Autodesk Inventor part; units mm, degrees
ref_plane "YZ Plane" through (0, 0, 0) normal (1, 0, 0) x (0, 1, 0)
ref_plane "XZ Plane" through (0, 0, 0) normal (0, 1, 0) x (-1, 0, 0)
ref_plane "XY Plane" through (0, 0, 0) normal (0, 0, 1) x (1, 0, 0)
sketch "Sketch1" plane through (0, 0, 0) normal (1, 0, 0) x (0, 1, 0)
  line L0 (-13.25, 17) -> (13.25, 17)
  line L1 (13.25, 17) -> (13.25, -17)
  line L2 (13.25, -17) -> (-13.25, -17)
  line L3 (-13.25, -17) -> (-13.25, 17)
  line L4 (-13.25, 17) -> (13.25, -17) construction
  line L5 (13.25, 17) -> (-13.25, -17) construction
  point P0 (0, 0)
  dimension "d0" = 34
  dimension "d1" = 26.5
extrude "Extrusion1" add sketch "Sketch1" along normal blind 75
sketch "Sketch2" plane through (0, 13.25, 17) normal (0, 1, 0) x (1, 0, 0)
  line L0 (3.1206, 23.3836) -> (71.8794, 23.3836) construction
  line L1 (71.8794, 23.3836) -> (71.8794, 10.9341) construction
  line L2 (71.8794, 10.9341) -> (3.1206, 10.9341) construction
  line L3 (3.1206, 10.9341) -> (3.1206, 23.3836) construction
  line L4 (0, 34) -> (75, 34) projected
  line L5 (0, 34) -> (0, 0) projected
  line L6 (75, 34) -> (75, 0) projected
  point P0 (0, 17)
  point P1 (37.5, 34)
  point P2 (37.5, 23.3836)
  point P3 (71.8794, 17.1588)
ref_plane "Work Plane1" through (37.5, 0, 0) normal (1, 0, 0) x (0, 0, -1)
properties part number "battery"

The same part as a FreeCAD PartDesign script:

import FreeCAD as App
import Part
import Sketcher

V = App.Vector
Q = App.Units.Quantity


def add_polygon(sketch, points):
    """Adds a closed chain of lines whose ends are joined by coincident constraints."""
    first, n = sketch.GeometryCount, len(points)
    for a, b in zip(points, points[1:] + points[:1]):
        sketch.addGeometry(Part.LineSegment(App.Vector(*a, 0), App.Vector(*b, 0)), False)
    for i in range(n):
        sketch.addConstraint(Sketcher.Constraint("Coincident", first + i, 2, first + (i + 1) % n, 1))

doc = App.newDocument("Part")
body = doc.addObject("PartDesign::Body", "Body")

sketch1 = doc.addObject("Sketcher::SketchObject", "Sketch")
body.addObject(sketch1)
sketch1.AttachmentSupport = (doc.YZ_Plane, [""])
sketch1.MapMode = "FlatFace"
add_polygon(sketch1, [(13, 17), (-13, 17), (-13, -17), (13, -17)])
sketch1.addConstraint(Sketcher.Constraint("Horizontal", 0))
sketch1.addConstraint(Sketcher.Constraint("Vertical", 1))
sketch1.addConstraint(Sketcher.Constraint("Horizontal", 2))
sketch1.addConstraint(Sketcher.Constraint("Vertical", 3))
sketch1.addConstraint(Sketcher.Constraint("Symmetric", 0, 2, 2, 2, -1, 1))
sketch1.addConstraint(Sketcher.Constraint("DistanceY", 1, 2, 1, 1, Q("34 mm")))
sketch1.addConstraint(Sketcher.Constraint("DistanceX", 0, 2, 0, 1, Q("26.5 mm")))
pad1 = doc.addObject("PartDesign::Pad", "Pad")
body.addObject(pad1)
pad1.Profile = sketch1
pad1.Length = 75

doc.recompute()
